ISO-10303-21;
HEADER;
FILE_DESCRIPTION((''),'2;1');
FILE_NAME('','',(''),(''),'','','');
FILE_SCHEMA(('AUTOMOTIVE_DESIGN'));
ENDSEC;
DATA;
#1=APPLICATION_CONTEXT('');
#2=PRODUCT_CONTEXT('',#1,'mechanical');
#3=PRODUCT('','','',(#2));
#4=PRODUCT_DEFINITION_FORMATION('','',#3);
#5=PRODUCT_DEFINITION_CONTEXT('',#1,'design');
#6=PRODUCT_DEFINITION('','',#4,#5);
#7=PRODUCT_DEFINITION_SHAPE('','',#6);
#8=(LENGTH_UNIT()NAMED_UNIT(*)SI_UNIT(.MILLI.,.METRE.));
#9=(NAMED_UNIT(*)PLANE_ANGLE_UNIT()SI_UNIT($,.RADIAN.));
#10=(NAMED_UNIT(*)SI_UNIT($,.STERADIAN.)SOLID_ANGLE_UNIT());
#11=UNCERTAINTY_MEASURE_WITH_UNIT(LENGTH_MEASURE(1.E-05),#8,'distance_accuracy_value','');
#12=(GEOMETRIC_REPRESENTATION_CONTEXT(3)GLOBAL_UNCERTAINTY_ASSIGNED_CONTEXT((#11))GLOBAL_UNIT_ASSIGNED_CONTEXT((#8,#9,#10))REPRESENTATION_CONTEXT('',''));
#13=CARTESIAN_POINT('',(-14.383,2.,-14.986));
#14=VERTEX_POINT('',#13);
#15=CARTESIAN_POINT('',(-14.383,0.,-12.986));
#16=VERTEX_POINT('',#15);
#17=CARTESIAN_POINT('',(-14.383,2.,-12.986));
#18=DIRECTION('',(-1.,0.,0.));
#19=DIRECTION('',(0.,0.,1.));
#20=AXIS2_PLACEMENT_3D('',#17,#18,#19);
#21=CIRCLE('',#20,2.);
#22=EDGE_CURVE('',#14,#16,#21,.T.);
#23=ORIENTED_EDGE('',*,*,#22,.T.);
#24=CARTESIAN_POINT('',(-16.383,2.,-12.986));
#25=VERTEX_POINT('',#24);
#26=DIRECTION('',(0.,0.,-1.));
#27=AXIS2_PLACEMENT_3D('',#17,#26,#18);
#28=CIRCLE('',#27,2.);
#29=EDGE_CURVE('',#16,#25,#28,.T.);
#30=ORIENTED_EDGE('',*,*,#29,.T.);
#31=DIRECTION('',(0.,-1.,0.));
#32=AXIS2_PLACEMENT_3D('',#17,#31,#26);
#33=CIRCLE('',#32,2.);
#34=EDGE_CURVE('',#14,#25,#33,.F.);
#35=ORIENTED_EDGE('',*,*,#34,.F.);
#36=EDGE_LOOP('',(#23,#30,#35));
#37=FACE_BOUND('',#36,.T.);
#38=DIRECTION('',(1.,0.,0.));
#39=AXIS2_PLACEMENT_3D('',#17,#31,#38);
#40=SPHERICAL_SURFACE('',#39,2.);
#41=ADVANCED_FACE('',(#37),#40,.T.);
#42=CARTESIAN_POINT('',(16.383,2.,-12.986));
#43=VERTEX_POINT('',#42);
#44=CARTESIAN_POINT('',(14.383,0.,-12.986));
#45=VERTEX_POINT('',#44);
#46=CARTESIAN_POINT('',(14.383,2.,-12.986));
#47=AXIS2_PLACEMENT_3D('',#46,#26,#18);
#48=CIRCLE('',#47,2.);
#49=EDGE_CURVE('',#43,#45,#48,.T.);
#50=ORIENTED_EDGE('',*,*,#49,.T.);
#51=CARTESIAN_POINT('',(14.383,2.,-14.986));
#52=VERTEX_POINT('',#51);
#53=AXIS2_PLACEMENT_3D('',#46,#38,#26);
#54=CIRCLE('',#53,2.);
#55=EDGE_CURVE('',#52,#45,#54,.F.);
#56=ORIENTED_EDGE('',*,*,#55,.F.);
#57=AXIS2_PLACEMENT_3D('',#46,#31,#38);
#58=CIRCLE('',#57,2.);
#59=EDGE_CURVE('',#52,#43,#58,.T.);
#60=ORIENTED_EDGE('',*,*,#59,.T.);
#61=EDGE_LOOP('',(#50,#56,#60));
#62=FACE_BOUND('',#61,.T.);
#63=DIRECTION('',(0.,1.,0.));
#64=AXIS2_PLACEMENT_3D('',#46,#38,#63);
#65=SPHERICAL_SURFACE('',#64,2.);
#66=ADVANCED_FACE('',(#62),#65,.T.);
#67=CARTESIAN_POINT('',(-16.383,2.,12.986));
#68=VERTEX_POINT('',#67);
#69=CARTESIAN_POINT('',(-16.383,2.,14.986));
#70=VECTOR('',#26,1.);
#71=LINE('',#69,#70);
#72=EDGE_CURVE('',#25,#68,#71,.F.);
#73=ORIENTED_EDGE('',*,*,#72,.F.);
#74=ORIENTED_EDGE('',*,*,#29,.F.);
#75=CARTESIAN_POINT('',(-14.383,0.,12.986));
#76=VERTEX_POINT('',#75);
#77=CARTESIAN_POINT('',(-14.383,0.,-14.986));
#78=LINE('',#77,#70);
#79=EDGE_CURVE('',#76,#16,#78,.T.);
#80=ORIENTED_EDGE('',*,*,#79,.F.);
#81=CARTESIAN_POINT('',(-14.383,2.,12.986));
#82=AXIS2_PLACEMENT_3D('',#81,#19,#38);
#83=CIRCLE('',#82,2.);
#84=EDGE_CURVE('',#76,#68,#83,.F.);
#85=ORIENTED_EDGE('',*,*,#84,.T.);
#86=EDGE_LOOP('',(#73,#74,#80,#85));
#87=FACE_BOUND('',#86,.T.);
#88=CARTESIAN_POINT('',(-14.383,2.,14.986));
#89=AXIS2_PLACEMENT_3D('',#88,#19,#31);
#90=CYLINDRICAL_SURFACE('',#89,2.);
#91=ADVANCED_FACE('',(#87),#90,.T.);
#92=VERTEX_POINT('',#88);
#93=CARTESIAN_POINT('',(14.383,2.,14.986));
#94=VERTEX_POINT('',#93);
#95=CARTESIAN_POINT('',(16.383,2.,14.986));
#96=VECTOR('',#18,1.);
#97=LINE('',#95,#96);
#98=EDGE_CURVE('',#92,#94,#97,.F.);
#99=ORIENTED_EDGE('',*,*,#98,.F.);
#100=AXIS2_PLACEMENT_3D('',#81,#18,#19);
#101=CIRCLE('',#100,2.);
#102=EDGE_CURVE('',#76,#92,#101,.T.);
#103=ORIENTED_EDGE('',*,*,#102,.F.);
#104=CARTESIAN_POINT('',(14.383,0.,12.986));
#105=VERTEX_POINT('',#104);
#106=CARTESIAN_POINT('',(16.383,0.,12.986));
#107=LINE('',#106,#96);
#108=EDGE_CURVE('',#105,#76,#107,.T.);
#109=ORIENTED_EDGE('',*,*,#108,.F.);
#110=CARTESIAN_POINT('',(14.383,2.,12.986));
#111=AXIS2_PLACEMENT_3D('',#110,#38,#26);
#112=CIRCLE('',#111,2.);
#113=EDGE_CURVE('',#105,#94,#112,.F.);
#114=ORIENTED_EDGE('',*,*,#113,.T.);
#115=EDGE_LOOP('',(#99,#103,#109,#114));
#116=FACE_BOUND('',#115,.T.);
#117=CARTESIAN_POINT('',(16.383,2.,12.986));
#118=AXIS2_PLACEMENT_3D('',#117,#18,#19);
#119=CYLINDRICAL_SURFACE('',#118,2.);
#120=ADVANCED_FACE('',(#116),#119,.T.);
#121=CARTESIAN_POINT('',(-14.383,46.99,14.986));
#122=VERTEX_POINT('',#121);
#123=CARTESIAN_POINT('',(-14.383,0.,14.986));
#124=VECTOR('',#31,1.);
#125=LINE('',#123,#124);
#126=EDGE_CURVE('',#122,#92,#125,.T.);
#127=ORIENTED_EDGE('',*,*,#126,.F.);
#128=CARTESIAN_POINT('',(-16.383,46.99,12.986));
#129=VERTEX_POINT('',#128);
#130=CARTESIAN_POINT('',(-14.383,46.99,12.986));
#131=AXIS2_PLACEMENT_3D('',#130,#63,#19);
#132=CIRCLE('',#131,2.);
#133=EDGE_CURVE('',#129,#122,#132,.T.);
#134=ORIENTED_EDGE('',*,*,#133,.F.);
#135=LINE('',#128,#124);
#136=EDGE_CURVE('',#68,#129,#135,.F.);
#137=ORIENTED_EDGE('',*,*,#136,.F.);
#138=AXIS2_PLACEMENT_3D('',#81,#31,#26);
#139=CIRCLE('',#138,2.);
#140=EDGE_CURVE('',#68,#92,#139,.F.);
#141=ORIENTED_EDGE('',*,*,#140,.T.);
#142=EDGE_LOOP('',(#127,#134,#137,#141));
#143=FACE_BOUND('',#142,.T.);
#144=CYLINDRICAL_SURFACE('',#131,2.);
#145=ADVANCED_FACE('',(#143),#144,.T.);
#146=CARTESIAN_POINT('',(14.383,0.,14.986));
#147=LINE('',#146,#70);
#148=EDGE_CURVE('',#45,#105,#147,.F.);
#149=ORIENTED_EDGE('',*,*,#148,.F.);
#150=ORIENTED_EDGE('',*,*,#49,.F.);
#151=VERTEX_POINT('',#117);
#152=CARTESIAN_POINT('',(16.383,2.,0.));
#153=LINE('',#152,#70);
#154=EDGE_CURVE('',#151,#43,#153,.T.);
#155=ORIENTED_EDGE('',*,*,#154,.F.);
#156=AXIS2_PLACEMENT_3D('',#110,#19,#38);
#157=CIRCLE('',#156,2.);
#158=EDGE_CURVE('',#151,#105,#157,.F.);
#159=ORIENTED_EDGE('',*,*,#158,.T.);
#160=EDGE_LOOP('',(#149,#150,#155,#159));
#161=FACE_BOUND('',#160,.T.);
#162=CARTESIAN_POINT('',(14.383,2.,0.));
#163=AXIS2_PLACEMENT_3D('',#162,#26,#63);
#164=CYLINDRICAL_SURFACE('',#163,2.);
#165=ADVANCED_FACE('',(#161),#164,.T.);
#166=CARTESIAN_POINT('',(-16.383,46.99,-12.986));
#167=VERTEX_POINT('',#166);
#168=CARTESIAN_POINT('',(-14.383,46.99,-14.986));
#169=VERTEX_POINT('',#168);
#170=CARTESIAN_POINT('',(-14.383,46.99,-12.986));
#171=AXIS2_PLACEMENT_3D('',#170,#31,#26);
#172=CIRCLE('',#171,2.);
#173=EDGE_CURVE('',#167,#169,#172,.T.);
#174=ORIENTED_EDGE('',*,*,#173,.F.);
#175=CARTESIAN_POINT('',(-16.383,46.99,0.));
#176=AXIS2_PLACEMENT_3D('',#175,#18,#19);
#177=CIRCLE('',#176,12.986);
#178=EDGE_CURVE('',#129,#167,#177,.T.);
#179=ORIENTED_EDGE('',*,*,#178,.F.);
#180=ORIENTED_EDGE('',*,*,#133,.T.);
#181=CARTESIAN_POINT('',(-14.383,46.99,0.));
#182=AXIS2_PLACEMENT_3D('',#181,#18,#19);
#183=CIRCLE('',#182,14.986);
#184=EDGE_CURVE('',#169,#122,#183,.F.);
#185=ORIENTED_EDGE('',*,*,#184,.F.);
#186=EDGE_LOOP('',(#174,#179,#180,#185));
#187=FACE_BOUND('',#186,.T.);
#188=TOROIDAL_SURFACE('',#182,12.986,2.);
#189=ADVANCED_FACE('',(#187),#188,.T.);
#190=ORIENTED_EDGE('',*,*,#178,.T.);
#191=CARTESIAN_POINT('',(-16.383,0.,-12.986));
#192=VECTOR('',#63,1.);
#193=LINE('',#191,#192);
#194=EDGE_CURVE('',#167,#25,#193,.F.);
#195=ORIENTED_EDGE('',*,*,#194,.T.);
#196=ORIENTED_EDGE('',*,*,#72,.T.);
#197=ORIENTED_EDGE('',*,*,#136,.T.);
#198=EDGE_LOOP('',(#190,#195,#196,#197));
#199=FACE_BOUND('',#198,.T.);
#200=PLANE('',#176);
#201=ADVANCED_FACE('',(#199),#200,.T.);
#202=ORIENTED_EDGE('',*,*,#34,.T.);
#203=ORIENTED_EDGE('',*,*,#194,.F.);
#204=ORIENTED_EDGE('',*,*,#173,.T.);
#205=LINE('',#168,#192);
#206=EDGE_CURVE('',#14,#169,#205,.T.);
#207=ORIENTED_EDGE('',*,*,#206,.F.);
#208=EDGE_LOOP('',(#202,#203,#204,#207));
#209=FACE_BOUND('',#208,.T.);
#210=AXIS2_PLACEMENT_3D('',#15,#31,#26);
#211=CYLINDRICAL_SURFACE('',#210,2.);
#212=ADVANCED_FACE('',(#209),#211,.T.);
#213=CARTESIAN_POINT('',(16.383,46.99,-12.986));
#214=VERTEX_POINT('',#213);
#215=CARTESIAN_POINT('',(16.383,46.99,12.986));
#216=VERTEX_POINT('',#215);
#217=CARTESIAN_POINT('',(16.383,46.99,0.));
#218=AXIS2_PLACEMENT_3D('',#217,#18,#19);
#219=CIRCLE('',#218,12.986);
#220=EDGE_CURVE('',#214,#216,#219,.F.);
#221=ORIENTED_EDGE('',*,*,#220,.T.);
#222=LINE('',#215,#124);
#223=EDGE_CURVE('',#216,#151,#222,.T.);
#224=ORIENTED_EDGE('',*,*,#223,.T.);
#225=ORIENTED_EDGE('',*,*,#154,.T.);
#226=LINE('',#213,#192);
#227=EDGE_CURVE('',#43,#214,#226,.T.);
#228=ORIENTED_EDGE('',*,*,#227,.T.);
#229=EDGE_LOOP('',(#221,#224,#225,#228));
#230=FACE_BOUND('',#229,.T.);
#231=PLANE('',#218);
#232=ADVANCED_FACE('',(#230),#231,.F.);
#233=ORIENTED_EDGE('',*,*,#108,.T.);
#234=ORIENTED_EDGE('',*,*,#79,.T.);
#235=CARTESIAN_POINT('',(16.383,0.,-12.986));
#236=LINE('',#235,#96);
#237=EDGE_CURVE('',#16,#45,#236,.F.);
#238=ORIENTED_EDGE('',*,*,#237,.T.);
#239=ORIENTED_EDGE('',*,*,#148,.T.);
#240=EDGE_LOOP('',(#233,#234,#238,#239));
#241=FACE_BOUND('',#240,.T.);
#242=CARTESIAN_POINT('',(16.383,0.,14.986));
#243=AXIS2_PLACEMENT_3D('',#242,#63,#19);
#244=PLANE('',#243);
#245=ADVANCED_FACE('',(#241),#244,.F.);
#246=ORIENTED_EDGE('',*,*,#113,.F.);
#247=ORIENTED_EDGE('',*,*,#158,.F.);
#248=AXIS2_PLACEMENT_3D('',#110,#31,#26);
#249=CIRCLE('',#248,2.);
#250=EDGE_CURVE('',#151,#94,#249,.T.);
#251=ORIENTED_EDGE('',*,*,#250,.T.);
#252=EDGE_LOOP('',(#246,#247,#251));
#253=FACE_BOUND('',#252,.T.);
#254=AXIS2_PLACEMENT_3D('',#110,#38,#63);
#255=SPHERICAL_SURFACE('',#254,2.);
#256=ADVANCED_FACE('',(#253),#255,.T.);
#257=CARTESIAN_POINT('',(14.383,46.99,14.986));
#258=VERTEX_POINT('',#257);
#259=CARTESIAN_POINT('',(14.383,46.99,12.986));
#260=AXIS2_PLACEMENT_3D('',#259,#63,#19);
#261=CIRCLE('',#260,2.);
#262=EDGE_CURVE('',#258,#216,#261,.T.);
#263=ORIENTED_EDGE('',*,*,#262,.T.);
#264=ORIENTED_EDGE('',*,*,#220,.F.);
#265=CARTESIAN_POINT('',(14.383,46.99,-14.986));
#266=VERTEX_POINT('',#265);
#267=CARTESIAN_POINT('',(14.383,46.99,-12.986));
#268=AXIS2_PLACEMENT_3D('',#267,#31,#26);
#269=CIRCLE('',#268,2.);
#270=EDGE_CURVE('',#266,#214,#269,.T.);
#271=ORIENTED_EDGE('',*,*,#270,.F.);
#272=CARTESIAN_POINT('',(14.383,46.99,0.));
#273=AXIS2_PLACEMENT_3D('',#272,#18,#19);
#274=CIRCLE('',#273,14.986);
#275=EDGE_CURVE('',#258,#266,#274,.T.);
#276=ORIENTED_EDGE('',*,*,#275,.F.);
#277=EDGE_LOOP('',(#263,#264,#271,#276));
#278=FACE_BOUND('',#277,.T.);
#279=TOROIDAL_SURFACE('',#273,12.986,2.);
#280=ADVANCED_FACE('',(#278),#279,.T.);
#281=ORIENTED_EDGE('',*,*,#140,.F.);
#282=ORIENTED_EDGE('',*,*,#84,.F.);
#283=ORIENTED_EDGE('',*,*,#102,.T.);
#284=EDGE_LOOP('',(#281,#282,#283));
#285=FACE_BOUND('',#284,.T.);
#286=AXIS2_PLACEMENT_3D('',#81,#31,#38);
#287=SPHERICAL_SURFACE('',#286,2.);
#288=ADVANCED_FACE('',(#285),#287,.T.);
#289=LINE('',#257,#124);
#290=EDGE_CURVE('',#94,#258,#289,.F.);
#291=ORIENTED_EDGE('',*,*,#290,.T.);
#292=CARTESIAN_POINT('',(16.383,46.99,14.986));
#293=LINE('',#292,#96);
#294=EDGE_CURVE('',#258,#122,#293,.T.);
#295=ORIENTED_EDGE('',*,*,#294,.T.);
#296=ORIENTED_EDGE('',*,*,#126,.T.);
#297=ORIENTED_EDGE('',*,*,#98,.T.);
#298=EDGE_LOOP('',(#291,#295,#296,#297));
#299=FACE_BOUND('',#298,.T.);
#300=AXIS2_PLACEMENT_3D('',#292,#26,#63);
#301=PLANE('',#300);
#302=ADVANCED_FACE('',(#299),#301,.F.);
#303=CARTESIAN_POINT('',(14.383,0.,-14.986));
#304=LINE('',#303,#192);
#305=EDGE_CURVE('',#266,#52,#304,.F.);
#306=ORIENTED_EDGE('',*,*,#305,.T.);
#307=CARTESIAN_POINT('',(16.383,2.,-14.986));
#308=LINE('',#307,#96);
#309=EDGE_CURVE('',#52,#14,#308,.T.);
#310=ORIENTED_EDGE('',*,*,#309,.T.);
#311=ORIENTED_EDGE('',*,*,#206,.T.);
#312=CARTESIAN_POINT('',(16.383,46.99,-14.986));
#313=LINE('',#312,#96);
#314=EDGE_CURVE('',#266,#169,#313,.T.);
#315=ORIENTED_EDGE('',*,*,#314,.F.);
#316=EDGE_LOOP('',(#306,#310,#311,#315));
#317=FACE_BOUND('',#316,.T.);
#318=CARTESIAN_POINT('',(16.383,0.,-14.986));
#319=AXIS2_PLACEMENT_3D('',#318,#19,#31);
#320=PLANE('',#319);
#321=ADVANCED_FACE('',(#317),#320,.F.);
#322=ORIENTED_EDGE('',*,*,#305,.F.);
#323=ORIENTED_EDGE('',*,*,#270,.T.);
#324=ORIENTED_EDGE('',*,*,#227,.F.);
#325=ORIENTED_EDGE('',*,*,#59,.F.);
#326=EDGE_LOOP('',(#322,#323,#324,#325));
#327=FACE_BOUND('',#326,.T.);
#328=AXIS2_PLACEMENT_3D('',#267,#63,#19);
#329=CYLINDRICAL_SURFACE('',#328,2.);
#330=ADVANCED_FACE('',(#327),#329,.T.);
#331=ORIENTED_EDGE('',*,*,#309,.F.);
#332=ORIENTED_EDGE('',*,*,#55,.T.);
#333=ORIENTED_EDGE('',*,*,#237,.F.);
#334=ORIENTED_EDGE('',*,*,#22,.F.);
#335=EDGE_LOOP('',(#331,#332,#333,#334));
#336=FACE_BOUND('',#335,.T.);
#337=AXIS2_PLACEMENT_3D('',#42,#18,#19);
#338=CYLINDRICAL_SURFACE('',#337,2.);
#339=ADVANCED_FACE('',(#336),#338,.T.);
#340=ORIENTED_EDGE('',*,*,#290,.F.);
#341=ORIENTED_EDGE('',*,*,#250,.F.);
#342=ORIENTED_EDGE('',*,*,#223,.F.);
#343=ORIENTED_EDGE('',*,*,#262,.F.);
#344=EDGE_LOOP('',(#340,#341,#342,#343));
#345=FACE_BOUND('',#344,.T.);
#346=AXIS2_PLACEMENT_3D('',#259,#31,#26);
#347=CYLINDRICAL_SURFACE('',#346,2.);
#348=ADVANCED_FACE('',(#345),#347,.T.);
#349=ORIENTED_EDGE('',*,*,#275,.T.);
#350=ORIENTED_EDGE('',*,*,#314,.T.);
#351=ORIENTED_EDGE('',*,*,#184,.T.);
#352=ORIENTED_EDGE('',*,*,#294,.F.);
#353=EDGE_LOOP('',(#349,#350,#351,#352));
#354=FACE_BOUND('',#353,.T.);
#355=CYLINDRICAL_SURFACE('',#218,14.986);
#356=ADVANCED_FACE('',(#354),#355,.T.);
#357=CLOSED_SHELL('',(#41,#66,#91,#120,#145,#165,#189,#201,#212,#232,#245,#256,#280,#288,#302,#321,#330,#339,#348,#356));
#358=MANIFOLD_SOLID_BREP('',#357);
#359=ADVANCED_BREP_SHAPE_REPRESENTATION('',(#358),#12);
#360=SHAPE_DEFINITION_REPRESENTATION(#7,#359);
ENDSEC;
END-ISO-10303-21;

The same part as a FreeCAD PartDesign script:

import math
import FreeCAD as App
import Part
import Sketcher
Q = App.Units.Quantity

doc = App.newDocument("Part")
body = doc.addObject("PartDesign::Body", "Body")

# Sketch on YZ plane
sketch1 = body.newObject("Sketcher::SketchObject", "Sketch")
sketch1.AttachmentSupport = (doc.getObject("YZ_Plane"), [""])
sketch1.MapMode = "FlatFace"
sketch1.addGeometry([
    Part.LineSegment(App.Vector(47, 15, 0), App.Vector(0, 15, 0)),
    Part.LineSegment(App.Vector(0, 15, 0), App.Vector(0, -15, 0)),
    Part.LineSegment(App.Vector(0, -15, 0), App.Vector(47, -15, 0)),
    Part.ArcOfCircle(Part.Circle(App.Vector(47, 0, 0), App.Vector(0, 0, 1), 15), math.radians(-90), math.radians(90)),
], False)
sketch1.addConstraint([
    Sketcher.Constraint("Coincident", 0, 2, 1, 1),
    Sketcher.Constraint("Coincident", 1, 2, 2, 1),
    Sketcher.Constraint("Tangent", 2, 2, 3, 1),
    Sketcher.Constraint("Tangent", 3, 2, 0, 1),
    Sketcher.Constraint("Horizontal", 0),
    Sketcher.Constraint("Vertical", 1),
    Sketcher.Constraint("Horizontal", 2),
    Sketcher.Constraint("Symmetric", 0, 2, 1, 2, -1, 1),
    Sketcher.Constraint("Radius", 3, Q("0.59 in")),
    Sketcher.Constraint("DistanceX", 0, 2, 0, 1, Q("1.85 in")),
])
pad1 = body.newObject("PartDesign::Pad", "Pad")
pad1.Profile = sketch1
pad1.Length = Q("1.29 in")
pad1.Midplane = True
doc.recompute()

fillet = body.newObject("PartDesign::Fillet", "Fillet")
fillet.Base = (pad1, ["Edge1"])
fillet.UseAllEdges = True
fillet.Radius = 2

doc.recompute()
